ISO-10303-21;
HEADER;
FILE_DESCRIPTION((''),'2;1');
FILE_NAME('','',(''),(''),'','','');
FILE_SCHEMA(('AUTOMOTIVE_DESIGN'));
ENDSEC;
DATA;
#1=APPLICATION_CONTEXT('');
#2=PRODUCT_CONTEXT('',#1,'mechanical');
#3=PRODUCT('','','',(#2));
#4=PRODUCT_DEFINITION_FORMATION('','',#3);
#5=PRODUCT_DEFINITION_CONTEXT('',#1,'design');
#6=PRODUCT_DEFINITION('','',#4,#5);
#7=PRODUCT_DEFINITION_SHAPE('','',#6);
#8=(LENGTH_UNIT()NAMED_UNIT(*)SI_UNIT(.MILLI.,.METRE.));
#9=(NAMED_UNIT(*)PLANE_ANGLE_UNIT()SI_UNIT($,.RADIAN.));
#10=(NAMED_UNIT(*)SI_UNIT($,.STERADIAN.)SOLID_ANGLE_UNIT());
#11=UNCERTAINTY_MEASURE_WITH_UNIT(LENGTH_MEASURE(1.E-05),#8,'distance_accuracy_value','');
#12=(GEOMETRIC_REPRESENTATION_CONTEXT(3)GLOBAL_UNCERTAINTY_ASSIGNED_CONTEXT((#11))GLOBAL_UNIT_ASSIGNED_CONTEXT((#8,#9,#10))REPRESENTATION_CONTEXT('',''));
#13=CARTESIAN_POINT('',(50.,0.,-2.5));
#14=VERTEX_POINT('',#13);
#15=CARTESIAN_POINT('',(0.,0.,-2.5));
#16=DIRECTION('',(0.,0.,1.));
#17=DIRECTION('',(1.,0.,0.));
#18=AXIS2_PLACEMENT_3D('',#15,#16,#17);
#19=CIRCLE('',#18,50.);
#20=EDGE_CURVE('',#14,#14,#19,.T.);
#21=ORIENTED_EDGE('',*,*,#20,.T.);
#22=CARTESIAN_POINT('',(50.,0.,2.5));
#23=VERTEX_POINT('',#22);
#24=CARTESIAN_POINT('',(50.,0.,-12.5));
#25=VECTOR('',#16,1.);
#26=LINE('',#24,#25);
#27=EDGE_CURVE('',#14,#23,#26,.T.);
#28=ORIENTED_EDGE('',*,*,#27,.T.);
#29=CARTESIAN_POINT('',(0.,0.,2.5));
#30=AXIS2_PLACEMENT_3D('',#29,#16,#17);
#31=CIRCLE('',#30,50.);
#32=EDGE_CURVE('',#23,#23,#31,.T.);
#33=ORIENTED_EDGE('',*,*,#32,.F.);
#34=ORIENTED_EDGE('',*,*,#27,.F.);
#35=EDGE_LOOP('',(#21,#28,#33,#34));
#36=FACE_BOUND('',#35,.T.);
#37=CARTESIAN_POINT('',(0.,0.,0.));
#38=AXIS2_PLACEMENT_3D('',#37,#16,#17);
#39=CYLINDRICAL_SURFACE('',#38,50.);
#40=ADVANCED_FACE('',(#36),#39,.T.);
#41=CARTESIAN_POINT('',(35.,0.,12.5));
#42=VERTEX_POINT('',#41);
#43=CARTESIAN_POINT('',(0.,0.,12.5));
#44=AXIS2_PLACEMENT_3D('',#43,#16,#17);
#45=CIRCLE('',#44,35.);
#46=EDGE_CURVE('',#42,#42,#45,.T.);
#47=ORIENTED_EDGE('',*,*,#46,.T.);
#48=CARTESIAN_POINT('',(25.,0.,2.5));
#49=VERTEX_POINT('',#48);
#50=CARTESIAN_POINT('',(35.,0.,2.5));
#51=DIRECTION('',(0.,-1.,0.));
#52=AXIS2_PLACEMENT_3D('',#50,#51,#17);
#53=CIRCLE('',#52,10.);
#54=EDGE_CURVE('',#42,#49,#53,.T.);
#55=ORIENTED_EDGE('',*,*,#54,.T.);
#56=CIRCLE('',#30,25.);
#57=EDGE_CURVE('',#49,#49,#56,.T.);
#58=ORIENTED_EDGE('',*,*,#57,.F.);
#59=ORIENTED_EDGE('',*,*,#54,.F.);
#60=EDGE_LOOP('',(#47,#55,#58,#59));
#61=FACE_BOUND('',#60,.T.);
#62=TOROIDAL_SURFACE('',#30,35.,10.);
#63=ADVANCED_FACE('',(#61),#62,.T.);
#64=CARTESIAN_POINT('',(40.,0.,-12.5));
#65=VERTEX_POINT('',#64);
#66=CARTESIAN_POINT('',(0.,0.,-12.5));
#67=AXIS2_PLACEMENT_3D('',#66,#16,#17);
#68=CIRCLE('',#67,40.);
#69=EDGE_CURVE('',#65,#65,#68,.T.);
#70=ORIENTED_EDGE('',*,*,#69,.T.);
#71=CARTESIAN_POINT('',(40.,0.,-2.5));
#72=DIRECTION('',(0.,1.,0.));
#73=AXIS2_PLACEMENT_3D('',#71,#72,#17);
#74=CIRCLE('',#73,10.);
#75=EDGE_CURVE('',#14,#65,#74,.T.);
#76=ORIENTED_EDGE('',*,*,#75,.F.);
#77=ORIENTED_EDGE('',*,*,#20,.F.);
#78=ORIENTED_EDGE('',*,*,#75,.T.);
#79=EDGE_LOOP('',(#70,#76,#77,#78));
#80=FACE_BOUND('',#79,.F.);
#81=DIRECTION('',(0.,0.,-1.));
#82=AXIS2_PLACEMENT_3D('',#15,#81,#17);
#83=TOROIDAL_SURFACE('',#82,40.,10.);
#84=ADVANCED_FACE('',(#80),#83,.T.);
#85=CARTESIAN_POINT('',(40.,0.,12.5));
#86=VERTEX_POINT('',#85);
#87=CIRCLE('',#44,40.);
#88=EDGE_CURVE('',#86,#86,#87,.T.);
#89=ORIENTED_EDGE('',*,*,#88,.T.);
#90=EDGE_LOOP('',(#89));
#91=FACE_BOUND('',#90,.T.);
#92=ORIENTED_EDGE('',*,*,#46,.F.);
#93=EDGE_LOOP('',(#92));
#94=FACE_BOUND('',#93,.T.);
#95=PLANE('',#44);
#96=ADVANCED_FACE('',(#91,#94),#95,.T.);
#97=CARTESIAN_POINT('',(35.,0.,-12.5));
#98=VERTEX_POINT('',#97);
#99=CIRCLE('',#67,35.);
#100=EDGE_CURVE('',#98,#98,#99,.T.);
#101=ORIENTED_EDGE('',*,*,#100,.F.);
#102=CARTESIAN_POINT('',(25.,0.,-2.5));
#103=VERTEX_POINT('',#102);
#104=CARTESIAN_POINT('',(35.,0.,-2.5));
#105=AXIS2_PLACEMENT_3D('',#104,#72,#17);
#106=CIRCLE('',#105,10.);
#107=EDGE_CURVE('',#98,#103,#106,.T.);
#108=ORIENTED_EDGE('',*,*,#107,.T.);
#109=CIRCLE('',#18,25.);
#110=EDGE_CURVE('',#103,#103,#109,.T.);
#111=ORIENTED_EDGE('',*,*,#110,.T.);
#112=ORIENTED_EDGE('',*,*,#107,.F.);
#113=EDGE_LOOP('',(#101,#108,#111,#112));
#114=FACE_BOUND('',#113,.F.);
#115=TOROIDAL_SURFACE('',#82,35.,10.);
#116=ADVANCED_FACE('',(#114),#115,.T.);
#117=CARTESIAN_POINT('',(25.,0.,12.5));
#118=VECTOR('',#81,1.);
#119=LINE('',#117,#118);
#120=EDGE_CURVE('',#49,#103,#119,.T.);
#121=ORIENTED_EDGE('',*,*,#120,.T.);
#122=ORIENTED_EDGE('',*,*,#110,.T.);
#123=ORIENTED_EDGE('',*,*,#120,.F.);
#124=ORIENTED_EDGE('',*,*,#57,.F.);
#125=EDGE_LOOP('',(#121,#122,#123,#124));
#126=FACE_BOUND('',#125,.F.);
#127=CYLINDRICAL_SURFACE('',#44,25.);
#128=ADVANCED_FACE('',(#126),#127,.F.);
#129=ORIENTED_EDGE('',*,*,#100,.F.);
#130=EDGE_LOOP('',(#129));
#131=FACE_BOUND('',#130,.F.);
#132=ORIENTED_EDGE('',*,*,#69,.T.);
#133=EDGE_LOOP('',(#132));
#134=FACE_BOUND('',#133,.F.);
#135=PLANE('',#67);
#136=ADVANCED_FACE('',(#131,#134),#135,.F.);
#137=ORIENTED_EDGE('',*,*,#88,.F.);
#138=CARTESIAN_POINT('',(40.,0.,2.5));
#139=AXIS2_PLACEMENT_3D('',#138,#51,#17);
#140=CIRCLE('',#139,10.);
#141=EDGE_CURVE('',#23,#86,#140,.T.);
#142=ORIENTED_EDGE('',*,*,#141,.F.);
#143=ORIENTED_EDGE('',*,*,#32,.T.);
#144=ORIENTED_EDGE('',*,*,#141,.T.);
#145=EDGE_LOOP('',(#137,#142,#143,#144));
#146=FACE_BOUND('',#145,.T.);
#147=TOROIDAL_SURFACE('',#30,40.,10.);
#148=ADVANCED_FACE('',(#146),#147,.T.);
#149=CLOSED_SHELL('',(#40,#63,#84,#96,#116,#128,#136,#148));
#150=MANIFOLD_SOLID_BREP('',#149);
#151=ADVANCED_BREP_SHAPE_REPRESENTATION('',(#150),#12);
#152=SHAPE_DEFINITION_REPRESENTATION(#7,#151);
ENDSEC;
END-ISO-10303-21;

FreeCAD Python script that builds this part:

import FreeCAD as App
import Part
import Sketcher
Q = App.Units.Quantity


def edges_at(feature, points):
    """Names of the edges that pass closest to the given points."""
    edges = feature.Shape.Edges
    near = lambda p: min(range(len(edges)), key=lambda i: edges[i].distToShape(Part.Vertex(*p))[0])
    return sorted({f"Edge{near(p) + 1}" for p in points})

doc = App.newDocument("Part")
body = doc.addObject("PartDesign::Body", "Body")

# Sketch on XY plane
sketch1 = body.newObject("Sketcher::SketchObject", "Sketch")
sketch1.AttachmentSupport = (doc.getObject("XY_Plane"), [""])
sketch1.MapMode = "FlatFace"
sketch1.addGeometry(Part.Circle(App.Vector(0, 0, 0), App.Vector(0, 0, 1), 50), False)
sketch1.addConstraint([
    Sketcher.Constraint("Coincident", 0, 3, -1, 1),
    Sketcher.Constraint("Diameter", 0, Q("100 mm")),
])
pad1 = body.newObject("PartDesign::Pad", "Pad")
pad1.Profile = sketch1
pad1.Length = 25
pad1.Midplane = True

# Sketch on XY plane
sketch2 = body.newObject("Sketcher::SketchObject", "Sketch001")
sketch2.AttachmentSupport = (doc.getObject("XY_Plane"), [""])
sketch2.MapMode = "FlatFace"
sketch2.AttachmentOffset = App.Placement(App.Vector(0, 0, 12.5), App.Rotation())
sketch2.addGeometry(Part.Circle(App.Vector(0, 0, 0), App.Vector(0, 0, 1), 25), False)
sketch2.addConstraint([
    Sketcher.Constraint("Coincident", 0, 3, -1, 1),
    Sketcher.Constraint("Diameter", 0, Q("50 mm")),
])
pocket1 = body.newObject("PartDesign::Pocket", "Pocket")
pocket1.Profile = sketch2
pocket1.Length = 25
doc.recompute()

fillet = body.newObject("PartDesign::Fillet", "Fillet")
fillet.Base = (pocket1, edges_at(pocket1, [
    (-50, 0, 12.5),
    (-50, 0, -12.5),
    (-25, 0, 12.5),
    (-25, 0, -12.5),
]))
fillet.Radius = 10

doc.recompute()
